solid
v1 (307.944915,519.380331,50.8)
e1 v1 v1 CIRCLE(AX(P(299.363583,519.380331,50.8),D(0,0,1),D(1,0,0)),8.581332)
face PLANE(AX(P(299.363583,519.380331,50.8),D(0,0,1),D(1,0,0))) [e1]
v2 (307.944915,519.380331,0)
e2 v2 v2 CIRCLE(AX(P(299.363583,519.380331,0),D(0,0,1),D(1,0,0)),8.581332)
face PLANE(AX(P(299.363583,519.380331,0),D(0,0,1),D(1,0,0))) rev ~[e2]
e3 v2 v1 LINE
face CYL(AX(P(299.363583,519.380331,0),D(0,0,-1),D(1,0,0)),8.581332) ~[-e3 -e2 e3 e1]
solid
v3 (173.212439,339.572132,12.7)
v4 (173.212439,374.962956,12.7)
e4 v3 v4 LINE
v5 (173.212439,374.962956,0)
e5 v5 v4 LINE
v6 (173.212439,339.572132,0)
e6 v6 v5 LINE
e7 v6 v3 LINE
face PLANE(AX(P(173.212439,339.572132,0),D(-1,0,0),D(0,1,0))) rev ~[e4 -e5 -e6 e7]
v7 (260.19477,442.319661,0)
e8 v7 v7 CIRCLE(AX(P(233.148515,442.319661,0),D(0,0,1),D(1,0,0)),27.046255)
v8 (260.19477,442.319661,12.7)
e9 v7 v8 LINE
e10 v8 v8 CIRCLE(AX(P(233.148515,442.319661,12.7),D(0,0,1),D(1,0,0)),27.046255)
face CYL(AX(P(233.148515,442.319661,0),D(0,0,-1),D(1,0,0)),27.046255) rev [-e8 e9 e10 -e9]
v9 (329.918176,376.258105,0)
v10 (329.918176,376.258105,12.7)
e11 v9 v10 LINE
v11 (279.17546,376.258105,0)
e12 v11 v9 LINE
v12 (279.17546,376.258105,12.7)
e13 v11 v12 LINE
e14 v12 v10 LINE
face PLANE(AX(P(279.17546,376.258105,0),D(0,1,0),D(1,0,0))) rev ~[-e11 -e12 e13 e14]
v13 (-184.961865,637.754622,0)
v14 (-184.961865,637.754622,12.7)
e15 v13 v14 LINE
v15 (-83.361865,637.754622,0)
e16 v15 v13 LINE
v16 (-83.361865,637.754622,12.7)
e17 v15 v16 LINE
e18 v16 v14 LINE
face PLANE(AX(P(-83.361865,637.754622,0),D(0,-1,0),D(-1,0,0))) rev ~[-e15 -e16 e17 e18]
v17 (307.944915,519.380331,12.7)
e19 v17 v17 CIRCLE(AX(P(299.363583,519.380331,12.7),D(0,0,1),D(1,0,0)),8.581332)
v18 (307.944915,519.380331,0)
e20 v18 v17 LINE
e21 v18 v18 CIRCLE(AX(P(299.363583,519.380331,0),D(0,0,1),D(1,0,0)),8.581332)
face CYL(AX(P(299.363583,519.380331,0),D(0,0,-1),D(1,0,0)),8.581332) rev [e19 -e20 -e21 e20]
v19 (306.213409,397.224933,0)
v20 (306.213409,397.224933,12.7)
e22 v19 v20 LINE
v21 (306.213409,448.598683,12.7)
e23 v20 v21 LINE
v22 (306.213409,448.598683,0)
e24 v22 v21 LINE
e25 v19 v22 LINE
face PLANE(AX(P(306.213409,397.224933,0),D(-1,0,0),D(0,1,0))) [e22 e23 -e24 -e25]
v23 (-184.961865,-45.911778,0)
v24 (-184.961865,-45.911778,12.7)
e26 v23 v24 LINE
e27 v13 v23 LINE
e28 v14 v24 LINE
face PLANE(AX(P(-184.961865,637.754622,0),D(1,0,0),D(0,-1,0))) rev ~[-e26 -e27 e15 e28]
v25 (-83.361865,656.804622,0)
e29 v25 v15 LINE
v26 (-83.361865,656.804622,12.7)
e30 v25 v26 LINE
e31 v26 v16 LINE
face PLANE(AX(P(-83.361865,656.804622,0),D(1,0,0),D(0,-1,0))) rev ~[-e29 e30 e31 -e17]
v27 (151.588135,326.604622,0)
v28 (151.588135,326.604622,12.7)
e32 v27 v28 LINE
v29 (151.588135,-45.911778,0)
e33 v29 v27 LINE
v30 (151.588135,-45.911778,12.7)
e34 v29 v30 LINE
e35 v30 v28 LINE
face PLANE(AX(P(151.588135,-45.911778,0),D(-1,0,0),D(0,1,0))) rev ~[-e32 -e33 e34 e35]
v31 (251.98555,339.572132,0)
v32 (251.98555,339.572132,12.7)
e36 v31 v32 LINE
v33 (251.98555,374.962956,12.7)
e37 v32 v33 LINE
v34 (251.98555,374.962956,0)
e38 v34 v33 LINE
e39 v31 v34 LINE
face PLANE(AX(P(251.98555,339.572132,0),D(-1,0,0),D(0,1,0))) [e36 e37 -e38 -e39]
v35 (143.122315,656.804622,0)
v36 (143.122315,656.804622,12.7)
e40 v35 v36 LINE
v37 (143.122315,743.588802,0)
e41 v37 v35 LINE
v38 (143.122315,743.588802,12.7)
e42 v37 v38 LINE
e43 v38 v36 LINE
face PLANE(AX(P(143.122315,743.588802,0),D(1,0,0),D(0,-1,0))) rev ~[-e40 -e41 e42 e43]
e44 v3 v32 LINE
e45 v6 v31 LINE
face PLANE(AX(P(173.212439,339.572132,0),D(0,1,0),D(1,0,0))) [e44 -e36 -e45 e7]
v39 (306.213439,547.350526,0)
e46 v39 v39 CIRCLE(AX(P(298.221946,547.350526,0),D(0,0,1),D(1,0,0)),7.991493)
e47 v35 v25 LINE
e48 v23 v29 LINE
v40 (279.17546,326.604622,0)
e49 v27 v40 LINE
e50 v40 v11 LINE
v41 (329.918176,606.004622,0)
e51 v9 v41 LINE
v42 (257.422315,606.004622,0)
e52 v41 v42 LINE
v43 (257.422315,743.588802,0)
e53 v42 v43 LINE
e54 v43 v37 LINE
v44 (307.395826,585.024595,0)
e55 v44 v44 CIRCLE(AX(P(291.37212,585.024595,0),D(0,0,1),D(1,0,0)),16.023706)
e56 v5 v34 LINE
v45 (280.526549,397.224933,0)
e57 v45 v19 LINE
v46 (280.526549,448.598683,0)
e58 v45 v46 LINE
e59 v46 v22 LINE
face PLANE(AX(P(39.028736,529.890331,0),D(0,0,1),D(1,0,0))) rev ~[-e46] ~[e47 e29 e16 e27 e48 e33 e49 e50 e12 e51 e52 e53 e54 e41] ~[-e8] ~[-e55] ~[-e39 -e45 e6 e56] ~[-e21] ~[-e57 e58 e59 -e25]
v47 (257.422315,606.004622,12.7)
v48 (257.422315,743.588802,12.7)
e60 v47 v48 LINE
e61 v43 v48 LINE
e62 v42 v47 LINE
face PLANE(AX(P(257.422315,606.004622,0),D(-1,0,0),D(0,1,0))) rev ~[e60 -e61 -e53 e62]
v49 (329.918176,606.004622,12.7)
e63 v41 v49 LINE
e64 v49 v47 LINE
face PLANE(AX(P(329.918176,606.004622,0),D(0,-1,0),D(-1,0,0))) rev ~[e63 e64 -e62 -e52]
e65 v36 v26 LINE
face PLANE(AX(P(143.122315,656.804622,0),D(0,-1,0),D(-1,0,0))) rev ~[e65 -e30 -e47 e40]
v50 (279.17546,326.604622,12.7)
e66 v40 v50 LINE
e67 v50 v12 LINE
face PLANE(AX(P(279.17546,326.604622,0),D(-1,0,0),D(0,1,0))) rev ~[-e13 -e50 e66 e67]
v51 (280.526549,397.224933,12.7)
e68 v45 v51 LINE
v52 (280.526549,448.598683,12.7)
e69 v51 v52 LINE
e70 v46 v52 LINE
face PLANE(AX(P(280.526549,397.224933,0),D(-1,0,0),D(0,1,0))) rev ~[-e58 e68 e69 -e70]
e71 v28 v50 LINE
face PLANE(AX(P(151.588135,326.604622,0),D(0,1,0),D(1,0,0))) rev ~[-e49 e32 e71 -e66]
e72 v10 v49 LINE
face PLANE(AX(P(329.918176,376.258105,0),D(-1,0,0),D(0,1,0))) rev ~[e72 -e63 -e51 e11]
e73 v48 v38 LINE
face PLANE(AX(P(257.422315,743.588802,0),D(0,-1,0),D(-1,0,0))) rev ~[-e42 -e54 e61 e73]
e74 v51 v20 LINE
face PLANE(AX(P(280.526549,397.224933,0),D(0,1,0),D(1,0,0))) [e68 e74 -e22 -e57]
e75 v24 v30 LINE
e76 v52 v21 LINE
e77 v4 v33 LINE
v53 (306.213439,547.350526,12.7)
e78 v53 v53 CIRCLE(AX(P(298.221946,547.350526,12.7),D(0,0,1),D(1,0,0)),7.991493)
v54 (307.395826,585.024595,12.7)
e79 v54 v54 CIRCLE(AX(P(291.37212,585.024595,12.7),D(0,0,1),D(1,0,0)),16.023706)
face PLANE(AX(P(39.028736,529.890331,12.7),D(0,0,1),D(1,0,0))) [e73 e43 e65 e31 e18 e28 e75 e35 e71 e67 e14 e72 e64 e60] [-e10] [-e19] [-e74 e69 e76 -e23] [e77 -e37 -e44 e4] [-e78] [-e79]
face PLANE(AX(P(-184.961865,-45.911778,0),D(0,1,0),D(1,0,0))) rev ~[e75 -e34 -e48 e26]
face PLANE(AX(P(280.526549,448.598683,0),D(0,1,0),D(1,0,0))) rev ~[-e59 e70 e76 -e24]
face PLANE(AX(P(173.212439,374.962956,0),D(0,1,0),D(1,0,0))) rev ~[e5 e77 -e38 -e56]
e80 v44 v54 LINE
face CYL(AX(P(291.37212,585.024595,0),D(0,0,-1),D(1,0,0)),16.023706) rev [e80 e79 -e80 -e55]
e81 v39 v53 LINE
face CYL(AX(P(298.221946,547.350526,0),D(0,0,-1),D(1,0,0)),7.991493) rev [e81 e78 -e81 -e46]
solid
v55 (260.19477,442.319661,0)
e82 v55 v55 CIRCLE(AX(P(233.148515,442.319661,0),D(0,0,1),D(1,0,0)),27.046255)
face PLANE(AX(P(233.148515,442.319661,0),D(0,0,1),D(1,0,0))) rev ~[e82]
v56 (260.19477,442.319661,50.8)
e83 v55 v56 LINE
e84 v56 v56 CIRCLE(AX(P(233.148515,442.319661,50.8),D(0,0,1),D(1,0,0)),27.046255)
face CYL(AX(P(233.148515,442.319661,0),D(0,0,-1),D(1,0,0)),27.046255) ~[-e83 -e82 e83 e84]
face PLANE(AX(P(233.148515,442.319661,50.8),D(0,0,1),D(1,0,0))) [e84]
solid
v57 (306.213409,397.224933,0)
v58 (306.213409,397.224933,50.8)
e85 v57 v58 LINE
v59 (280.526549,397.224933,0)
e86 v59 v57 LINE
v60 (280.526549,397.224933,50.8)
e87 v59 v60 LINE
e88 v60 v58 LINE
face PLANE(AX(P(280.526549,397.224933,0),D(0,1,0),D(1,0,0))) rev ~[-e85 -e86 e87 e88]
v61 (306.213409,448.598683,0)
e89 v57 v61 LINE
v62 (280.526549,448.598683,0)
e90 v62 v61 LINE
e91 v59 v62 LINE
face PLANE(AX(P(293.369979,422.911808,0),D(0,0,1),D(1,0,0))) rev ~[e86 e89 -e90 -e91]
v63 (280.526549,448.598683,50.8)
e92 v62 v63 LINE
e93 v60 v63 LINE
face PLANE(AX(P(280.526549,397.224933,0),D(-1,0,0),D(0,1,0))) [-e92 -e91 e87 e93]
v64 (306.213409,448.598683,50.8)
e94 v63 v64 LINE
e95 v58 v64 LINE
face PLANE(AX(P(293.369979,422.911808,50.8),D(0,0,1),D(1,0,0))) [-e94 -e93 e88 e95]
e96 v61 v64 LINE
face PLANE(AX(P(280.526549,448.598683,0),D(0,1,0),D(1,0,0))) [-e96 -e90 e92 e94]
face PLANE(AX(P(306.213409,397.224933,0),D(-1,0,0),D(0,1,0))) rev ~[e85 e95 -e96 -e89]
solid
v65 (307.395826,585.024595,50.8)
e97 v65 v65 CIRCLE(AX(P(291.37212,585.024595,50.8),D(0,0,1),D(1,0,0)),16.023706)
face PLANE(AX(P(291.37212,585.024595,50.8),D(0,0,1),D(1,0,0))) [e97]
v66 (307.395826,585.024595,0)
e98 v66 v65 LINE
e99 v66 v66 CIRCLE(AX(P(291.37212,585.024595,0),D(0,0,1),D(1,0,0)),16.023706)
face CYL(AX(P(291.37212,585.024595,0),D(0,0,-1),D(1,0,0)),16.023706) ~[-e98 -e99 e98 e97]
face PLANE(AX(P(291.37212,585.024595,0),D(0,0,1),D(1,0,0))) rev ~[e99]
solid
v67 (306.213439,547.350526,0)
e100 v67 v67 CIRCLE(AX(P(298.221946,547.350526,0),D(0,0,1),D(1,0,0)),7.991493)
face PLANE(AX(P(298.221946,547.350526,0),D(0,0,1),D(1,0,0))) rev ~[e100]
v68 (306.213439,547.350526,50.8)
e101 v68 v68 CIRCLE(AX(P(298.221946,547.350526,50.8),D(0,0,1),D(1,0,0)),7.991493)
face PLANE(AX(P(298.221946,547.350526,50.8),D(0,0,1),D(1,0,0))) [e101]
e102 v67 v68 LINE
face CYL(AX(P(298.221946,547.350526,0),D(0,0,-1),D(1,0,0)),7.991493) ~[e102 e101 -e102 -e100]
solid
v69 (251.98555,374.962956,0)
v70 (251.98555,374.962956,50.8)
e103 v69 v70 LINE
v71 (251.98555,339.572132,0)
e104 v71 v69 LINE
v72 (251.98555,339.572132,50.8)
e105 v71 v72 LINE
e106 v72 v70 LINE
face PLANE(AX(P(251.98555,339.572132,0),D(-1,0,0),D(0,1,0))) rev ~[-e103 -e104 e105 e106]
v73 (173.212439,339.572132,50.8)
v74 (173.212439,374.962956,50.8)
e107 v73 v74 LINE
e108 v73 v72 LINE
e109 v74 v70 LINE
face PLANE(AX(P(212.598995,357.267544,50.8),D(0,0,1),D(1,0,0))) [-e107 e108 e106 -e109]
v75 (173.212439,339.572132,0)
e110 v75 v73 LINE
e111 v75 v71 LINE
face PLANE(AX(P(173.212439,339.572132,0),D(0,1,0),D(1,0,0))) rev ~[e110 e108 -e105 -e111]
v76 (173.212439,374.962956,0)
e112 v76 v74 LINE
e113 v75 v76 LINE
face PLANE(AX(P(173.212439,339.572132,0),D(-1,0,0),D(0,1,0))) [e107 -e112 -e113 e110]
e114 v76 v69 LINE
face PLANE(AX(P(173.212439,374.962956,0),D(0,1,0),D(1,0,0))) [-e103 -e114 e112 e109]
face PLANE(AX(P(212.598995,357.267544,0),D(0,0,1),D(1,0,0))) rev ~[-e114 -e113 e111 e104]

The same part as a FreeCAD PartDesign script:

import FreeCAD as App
import Part
import Sketcher

V = App.Vector
Q = App.Units.Quantity

doc = App.newDocument("Part")
params = doc.addObject("Spreadsheet::Sheet", "Params")
for row, (alias, value) in enumerate([
    ("pad1_length", "2 in"),
    ("pad2_length", "2 in"),
    ("pad3_length", "2 in"),
    ("pad4_length", "2 in"),
    ("sketch5_width", "4 in"),
    ("sketch5_width2", "4.5 in"),
    ("sketch5_width3", "13.25 in"),
    ("sketch5_height", "0.75 in"),
    ("sketch5_height2", "26.916 in"),
    ("pad5_length", "0.5 in"),
], start=1):
    params.set(f"A{row}", alias)
    params.set(f"B{row}", "=" + value)
    params.setAlias(f"B{row}", alias)

body = doc.addObject("PartDesign::Body", "Body")

# Sketch on XY plane
sketch1 = body.newObject("Sketcher::SketchObject", "Sketch")
sketch1.AttachmentSupport = (doc.getObject("XY_Plane"), [""])
sketch1.MapMode = "FlatFace"
sketch1.addGeometry(Part.Circle(V(233, 442, 0), V(0, 0, 1), 27), False)
sketch1.addConstraint([
    Sketcher.Constraint("Diameter", 0, Q("54.09251 mm")),
    Sketcher.Constraint("DistanceY", -1, 1, 0, 3, Q("442.319661 mm")),
    Sketcher.Constraint("DistanceX", -1, 1, 0, 3, Q("233.148515 mm")),
])
pad1 = body.newObject("PartDesign::Pad", "Pad")
pad1.Profile = sketch1
pad1.setExpression("Length", "Params.pad1_length")
body2 = doc.addObject("PartDesign::Body", "Body001")

# Sketch on XY plane
sketch2 = body2.newObject("Sketcher::SketchObject", "Sketch001")
sketch2.AttachmentSupport = (doc.getObject("XY_Plane001"), [""])
sketch2.MapMode = "FlatFace"
sketch2.addGeometry([
    Part.LineSegment(V(281, 449, 0), V(281, 397, 0)),
    Part.LineSegment(V(281, 397, 0), V(306, 397, 0)),
    Part.LineSegment(V(306, 397, 0), V(306, 449, 0)),
    Part.LineSegment(V(306, 449, 0), V(281, 449, 0)),
], False)
sketch2.addConstraint([
    Sketcher.Constraint("Coincident", 0, 2, 1, 1),
    Sketcher.Constraint("Coincident", 1, 2, 2, 1),
    Sketcher.Constraint("Coincident", 2, 2, 3, 1),
    Sketcher.Constraint("Coincident", 3, 2, 0, 1),
    Sketcher.Constraint("Vertical", 0),
    Sketcher.Constraint("Horizontal", 1),
    Sketcher.Constraint("Vertical", 2),
    Sketcher.Constraint("Horizontal", 3),
    Sketcher.Constraint("DistanceX", 1, 1, 1, 2, Q("25.68686 mm")),
    Sketcher.Constraint("DistanceY", 0, 2, 0, 1, Q("51.37375 mm")),
    Sketcher.Constraint("DistanceX", -1, 1, 0, 2, Q("280.526549 mm")),
    Sketcher.Constraint("DistanceY", -1, 1, 0, 2, Q("397.224933 mm")),
])
pad2 = body2.newObject("PartDesign::Pad", "Pad001")
pad2.Profile = sketch2
pad2.setExpression("Length", "Params.pad2_length")
body3 = doc.addObject("PartDesign::Body", "Body002")

# Sketch on XY plane
sketch3 = body3.newObject("Sketcher::SketchObject", "Sketch002")
sketch3.AttachmentSupport = (doc.getObject("XY_Plane002"), [""])
sketch3.MapMode = "FlatFace"
sketch3.addGeometry([
    Part.LineSegment(V(173, 375, 0), V(173, 340, 0)),
    Part.LineSegment(V(173, 340, 0), V(252, 340, 0)),
    Part.LineSegment(V(252, 340, 0), V(252, 375, 0)),
    Part.LineSegment(V(252, 375, 0), V(173, 375, 0)),
], False)
sketch3.addConstraint([
    Sketcher.Constraint("Coincident", 0, 2, 1, 1),
    Sketcher.Constraint("Coincident", 1, 2, 2, 1),
    Sketcher.Constraint("Coincident", 2, 2, 3, 1),
    Sketcher.Constraint("Coincident", 3, 2, 0, 1),
    Sketcher.Constraint("Vertical", 0),
    Sketcher.Constraint("Horizontal", 1),
    Sketcher.Constraint("Vertical", 2),
    Sketcher.Constraint("Horizontal", 3),
    Sketcher.Constraint("DistanceX", 1, 1, 1, 2, Q("78.773111 mm")),
    Sketcher.Constraint("DistanceY", 0, 2, 0, 1, Q("35.390824 mm")),
    Sketcher.Constraint("DistanceX", -1, 1, 0, 2, Q("173.212439 mm")),
    Sketcher.Constraint("DistanceY", -1, 1, 0, 2, Q("339.572132 mm")),
])
pad3 = body3.newObject("PartDesign::Pad", "Pad002")
pad3.Profile = sketch3
pad3.setExpression("Length", "Params.pad3_length")
body4 = doc.addObject("PartDesign::Body", "Body003")
body4.AllowCompound = True

# Sketch on XY plane
sketch4 = body4.newObject("Sketcher::SketchObject", "Sketch003")
sketch4.AttachmentSupport = (doc.getObject("XY_Plane003"), [""])
sketch4.MapMode = "FlatFace"
sketch4.addGeometry([
    Part.Circle(V(299, 519, 0), V(0, 0, 1), 9),
    Part.Circle(V(291, 585, 0), V(0, 0, 1), 16),
    Part.Circle(V(298, 547, 0), V(0, 0, 1), 8),
], False)
sketch4.addConstraint([
    Sketcher.Constraint("Diameter", 0, Q("17.162664 mm")),
    Sketcher.Constraint("Diameter", 1, Q("32.047412 mm")),
    Sketcher.Constraint("Diameter", 2, Q("15.982986 mm")),
    Sketcher.Constraint("DistanceY", -1, 1, 0, 3, Q("519.380331 mm")),
    Sketcher.Constraint("DistanceX", -1, 1, 1, 3, Q("291.37212 mm")),
    Sketcher.Constraint("DistanceY", 2, 3, 1, 3, Q("37.674069 mm")),
    Sketcher.Constraint("DistanceX", -1, 1, 0, 3, Q("299.363583 mm")),
    Sketcher.Constraint("DistanceY", -1, 1, 1, 3, Q("585.024595 mm")),
    Sketcher.Constraint("DistanceX", -1, 1, 2, 3, Q("298.221946 mm")),
])
pad4 = body4.newObject("PartDesign::Pad", "Pad003")
pad4.Profile = sketch4
pad4.setExpression("Length", "Params.pad4_length")
body5 = doc.addObject("PartDesign::Body", "Body004")

# Sketch on XY plane
sketch5 = body5.newObject("Sketcher::SketchObject", "Sketch004")
sketch5.AttachmentSupport = (doc.getObject("XY_Plane004"), [""])
sketch5.MapMode = "FlatFace"
sketch5.addGeometry([
    Part.LineSegment(V(257, 606, 0), V(257, 744, 0)),  # 0
    Part.LineSegment(V(257, 744, 0), V(143, 744, 0)),  # 1
    Part.LineSegment(V(143, 744, 0), V(143, 657, 0)),  # 2
    Part.LineSegment(V(143, 657, 0), V(-83, 657, 0)),  # 3
    Part.LineSegment(V(-83, 657, 0), V(-83, 638, 0)),  # 4
    Part.LineSegment(V(-83, 638, 0), V(-185, 638, 0)),  # 5
    Part.LineSegment(V(-185, 638, 0), V(-185, -46, 0)),  # 6
    Part.LineSegment(V(-185, -46, 0), V(152, -46, 0)),  # 7
    Part.LineSegment(V(152, -46, 0), V(152, 327, 0)),  # 8
    Part.LineSegment(V(152, 327, 0), V(279, 327, 0)),  # 9
    Part.LineSegment(V(279, 327, 0), V(279, 376, 0)),  # 10
    Part.LineSegment(V(279, 376, 0), V(330, 376, 0)),  # 11
    Part.LineSegment(V(330, 376, 0), V(330, 606, 0)),  # 12
    Part.LineSegment(V(330, 606, 0), V(257, 606, 0)),  # 13
    Part.LineSegment(V(252, 340, 0), V(173, 340, 0)),  # 14
    Part.LineSegment(V(173, 340, 0), V(173, 375, 0)),  # 15
    Part.LineSegment(V(173, 375, 0), V(252, 375, 0)),  # 16
    Part.LineSegment(V(252, 375, 0), V(252, 340, 0)),  # 17
    Part.Circle(V(233, 442, 0), V(0, 0, 1), 27),  # 18
    Part.LineSegment(V(306, 397, 0), V(281, 397, 0)),  # 19
    Part.LineSegment(V(281, 397, 0), V(281, 449, 0)),  # 20
    Part.LineSegment(V(281, 449, 0), V(306, 449, 0)),  # 21
    Part.LineSegment(V(306, 449, 0), V(306, 397, 0)),  # 22
    Part.Circle(V(299, 519, 0), V(0, 0, 1), 9),  # 23
    Part.Circle(V(298, 547, 0), V(0, 0, 1), 8),  # 24
    Part.Circle(V(291, 585, 0), V(0, 0, 1), 16),  # 25
], False)
sketch5.addConstraint([
    Sketcher.Constraint("Coincident", 0, 2, 1, 1),
    Sketcher.Constraint("Coincident", 1, 2, 2, 1),
    Sketcher.Constraint("Coincident", 2, 2, 3, 1),
    Sketcher.Constraint("Coincident", 3, 2, 4, 1),
    Sketcher.Constraint("Coincident", 4, 2, 5, 1),
    Sketcher.Constraint("Coincident", 5, 2, 6, 1),
    Sketcher.Constraint("Coincident", 6, 2, 7, 1),
    Sketcher.Constraint("Coincident", 7, 2, 8, 1),
    Sketcher.Constraint("Coincident", 8, 2, 9, 1),
    Sketcher.Constraint("Coincident", 9, 2, 10, 1),
    Sketcher.Constraint("Coincident", 10, 2, 11, 1),
    Sketcher.Constraint("Coincident", 11, 2, 12, 1),
    Sketcher.Constraint("Coincident", 12, 2, 13, 1),
    Sketcher.Constraint("Coincident", 13, 2, 0, 1),
    Sketcher.Constraint("Coincident", 14, 2, 15, 1),
    Sketcher.Constraint("Coincident", 15, 2, 16, 1),
    Sketcher.Constraint("Coincident", 16, 2, 17, 1),
    Sketcher.Constraint("Coincident", 17, 2, 14, 1),
    Sketcher.Constraint("Coincident", 19, 2, 20, 1),
    Sketcher.Constraint("Coincident", 20, 2, 21, 1),
    Sketcher.Constraint("Coincident", 21, 2, 22, 1),
    Sketcher.Constraint("Coincident", 22, 2, 19, 1),
    Sketcher.Constraint("Vertical", 0),
    Sketcher.Constraint("Horizontal", 1),
    Sketcher.Constraint("Vertical", 2),
    Sketcher.Constraint("Horizontal", 3),
    Sketcher.Constraint("Vertical", 4),
    Sketcher.Constraint("Horizontal", 5),
    Sketcher.Constraint("Vertical", 6),
    Sketcher.Constraint("Horizontal", 7),
    Sketcher.Constraint("Vertical", 8),
    Sketcher.Constraint("Horizontal", 9),
    Sketcher.Constraint("Vertical", 10),
    Sketcher.Constraint("Horizontal", 11),
    Sketcher.Constraint("Vertical", 12),
    Sketcher.Constraint("Horizontal", 13),
    Sketcher.Constraint("Horizontal", 14),
    Sketcher.Constraint("Vertical", 15),
    Sketcher.Constraint("Horizontal", 16),
    Sketcher.Constraint("Vertical", 17),
    Sketcher.Constraint("Horizontal", 19),
    Sketcher.Constraint("Vertical", 20),
    Sketcher.Constraint("Horizontal", 21),
    Sketcher.Constraint("Vertical", 22),
    Sketcher.Constraint("DistanceX", 5, 2, 5, 1, Q("4 in")),
    Sketcher.Constraint("DistanceX", 1, 2, 1, 1, Q("4.5 in")),
    Sketcher.Constraint("DistanceY", 8, 2, 2, 2, Q("13 in")),
    Sketcher.Constraint("DistanceY", 13, 2, 2, 2, Q("2 in")),
    Sketcher.Constraint("DistanceX", 7, 1, 7, 2, Q("13.25 in")),
    Sketcher.Constraint("DistanceY", 4, 2, 4, 1, Q("0.75 in")),
    Sketcher.Constraint("DistanceY", 6, 2, 6, 1, Q("26.916 in")),
    Sketcher.Constraint("Diameter", 18, Q("54.09251 mm")),
    Sketcher.Constraint("DistanceX", 3, 2, 3, 1, Q("8.9167 in")),
    Sketcher.Constraint("DistanceY", 0, 1, 0, 2, Q("5.4167 in")),
    Sketcher.Constraint("Diameter", 23, Q("17.162664 mm")),
    Sketcher.Constraint("Diameter", 24, Q("15.982986 mm")),
    Sketcher.Constraint("Diameter", 25, Q("32.047412 mm")),
    Sketcher.Constraint("DistanceX", 13, 2, 13, 1, Q("72.495861 mm")),
    Sketcher.Constraint("DistanceX", 14, 2, 14, 1, Q("78.773111 mm")),
    Sketcher.Constraint("DistanceX", 19, 2, 19, 1, Q("25.68686 mm")),
    Sketcher.Constraint("DistanceY", 20, 1, 20, 2, Q("51.37375 mm")),
    Sketcher.Constraint("DistanceY", -1, 1, 0, 2, Q("743.588802 mm")),
    Sketcher.Constraint("DistanceX", 18, 3, 0, 2, Q("24.2738 mm")),
    Sketcher.Constraint("DistanceX", 16, 2, 19, 2, Q("28.540999 mm")),
    Sketcher.Constraint("DistanceY", 17, 2, 19, 2, Q("57.652801 mm")),
    Sketcher.Constraint("DistanceX", 9, 1, 9, 2, Q("127.587325 mm")),
    Sketcher.Constraint("DistanceY", 10, 1, 10, 2, Q("49.653483 mm")),
    Sketcher.Constraint("DistanceY", 15, 1, 15, 2, Q("35.390824 mm")),
    Sketcher.Constraint("DistanceY", -1, 1, 18, 3, Q("442.319661 mm")),
    Sketcher.Constraint("DistanceY", -1, 1, 23, 3, Q("519.380331 mm")),
    Sketcher.Constraint("DistanceX", -1, 1, 25, 3, Q("291.37212 mm")),
    Sketcher.Constraint("DistanceX", -1, 1, 9, 2, Q("279.17546 mm")),
    Sketcher.Constraint("DistanceX", -1, 1, 14, 2, Q("173.212439 mm")),
    Sketcher.Constraint("DistanceY", -1, 1, 14, 2, Q("339.572132 mm")),
    Sketcher.Constraint("DistanceX", 18, 3, 23, 3, Q("66.215068 mm")),
    Sketcher.Constraint("DistanceX", 18, 3, 24, 3, Q("65.073431 mm")),
    Sketcher.Constraint("DistanceY", 24, 3, 25, 3, Q("37.674069 mm")),
    Sketcher.Constraint("DistanceY", 10, 2, 24, 3, Q("171.092421 mm")),
])
sketch5.setExpression("Constraints[44]", "Params.sketch5_width")
sketch5.setExpression("Constraints[45]", "Params.sketch5_width2")
sketch5.setExpression("Constraints[48]", "Params.sketch5_width3")
sketch5.setExpression("Constraints[49]", "Params.sketch5_height")
sketch5.setExpression("Constraints[50]", "Params.sketch5_height2")
pad5 = body5.newObject("PartDesign::Pad", "Pad004")
pad5.Profile = sketch5
pad5.setExpression("Length", "Params.pad5_length")

doc.recompute()
